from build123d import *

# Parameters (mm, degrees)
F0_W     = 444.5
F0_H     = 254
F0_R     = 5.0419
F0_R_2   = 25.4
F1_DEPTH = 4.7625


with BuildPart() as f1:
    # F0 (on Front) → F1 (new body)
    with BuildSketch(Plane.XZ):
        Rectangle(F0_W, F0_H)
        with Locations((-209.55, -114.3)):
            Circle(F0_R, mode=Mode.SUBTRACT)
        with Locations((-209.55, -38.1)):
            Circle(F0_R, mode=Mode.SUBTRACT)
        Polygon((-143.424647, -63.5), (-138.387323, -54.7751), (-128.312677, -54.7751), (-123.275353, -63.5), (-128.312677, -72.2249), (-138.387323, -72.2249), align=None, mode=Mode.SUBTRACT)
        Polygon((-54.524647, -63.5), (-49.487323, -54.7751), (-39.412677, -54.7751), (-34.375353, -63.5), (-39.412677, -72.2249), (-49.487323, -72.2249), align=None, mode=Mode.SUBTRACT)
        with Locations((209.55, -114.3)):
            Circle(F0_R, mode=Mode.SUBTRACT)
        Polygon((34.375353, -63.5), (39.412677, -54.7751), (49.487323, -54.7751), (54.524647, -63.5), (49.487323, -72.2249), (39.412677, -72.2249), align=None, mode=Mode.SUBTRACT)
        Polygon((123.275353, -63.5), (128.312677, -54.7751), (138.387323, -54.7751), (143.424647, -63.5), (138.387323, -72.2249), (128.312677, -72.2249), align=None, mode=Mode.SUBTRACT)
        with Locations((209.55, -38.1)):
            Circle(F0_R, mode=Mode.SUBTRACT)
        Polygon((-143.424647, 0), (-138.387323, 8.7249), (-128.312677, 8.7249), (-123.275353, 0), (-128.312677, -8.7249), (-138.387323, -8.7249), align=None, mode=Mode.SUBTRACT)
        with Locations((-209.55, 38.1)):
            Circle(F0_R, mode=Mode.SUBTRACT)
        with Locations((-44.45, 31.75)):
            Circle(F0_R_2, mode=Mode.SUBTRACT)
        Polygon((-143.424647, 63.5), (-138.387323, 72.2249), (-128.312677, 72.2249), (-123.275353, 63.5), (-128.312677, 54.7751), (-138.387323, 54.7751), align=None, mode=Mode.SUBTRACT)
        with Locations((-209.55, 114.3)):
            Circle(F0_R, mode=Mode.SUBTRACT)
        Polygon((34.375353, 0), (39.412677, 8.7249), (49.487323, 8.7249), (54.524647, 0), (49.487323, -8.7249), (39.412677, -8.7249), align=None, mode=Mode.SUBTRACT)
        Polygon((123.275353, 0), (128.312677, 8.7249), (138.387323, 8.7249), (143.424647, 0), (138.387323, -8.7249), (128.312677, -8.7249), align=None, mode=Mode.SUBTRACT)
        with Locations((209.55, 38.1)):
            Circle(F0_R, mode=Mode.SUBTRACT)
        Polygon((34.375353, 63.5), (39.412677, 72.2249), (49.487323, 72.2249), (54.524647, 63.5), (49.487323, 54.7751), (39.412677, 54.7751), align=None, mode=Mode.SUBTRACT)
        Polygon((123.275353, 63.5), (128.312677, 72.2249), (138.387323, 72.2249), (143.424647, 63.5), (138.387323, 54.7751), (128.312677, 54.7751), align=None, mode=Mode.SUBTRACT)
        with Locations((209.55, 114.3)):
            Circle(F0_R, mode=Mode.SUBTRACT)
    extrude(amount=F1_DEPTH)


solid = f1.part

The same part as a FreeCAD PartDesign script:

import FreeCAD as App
import Part
import Sketcher

V = App.Vector
Q = App.Units.Quantity


def add_polygon(sketch, points):
    """Adds a closed chain of lines whose ends are joined by coincident constraints."""
    first, n = sketch.GeometryCount, len(points)
    for a, b in zip(points, points[1:] + points[:1]):
        sketch.addGeometry(Part.LineSegment(App.Vector(*a, 0), App.Vector(*b, 0)), False)
    for i in range(n):
        sketch.addConstraint(Sketcher.Constraint("Coincident", first + i, 2, first + (i + 1) % n, 1))

doc = App.newDocument("Part")
body = doc.addObject("PartDesign::Body", "Body")

sketch1 = body.newObject("Sketcher::SketchObject", "Sketch")
sketch1.AttachmentSupport = (doc.getObject("XZ_Plane"), [""])
sketch1.MapMode = "FlatFace"
add_polygon(sketch1, [(-222.25, 127), (-222.25, -127), (222.25, -127), (222.25, 127)])
sketch1.addGeometry(Part.Circle(V(-209.55, -114.3, 0), V(0, 0, 1), 5.0419), False)
add_polygon(sketch1, [(-138.387323, -72.2249), (-143.424647, -63.5), (-138.387323, -54.7751), (-128.312677, -54.7751), (-123.275353, -63.5), (-128.312677, -72.2249)])
add_polygon(sketch1, [(-49.487323, -72.2249), (-54.524647, -63.5), (-49.487323, -54.7751), (-39.412677, -54.7751), (-34.375353, -63.5), (-39.412677, -72.2249)])
sketch1.addGeometry(Part.Circle(V(-209.55, -38.1, 0), V(0, 0, 1), 5.0419), False)
add_polygon(sketch1, [(-138.387323, -8.7249), (-143.424647, 0), (-138.387323, 8.7249), (-128.312677, 8.7249), (-123.275353, 0), (-128.312677, -8.7249)])
add_polygon(sketch1, [(39.412677, -72.2249), (34.375353, -63.5), (39.412677, -54.7751), (49.487323, -54.7751), (54.524647, -63.5), (49.487323, -72.2249)])
sketch1.addGeometry(Part.Circle(V(209.55, -114.3, 0), V(0, 0, 1), 5.0419), False)
add_polygon(sketch1, [(128.312677, -72.2249), (123.275353, -63.5), (128.312677, -54.7751), (138.387323, -54.7751), (143.424647, -63.5), (138.387323, -72.2249)])
add_polygon(sketch1, [(39.412677, -8.7249), (34.375353, 0), (39.412677, 8.7249), (49.487323, 8.7249), (54.524647, 0), (49.487323, -8.7249)])
sketch1.addGeometry(Part.Circle(V(209.55, -38.1, 0), V(0, 0, 1), 5.0419), False)
add_polygon(sketch1, [(128.312677, -8.7249), (123.275353, 0), (128.312677, 8.7249), (138.387323, 8.7249), (143.424647, 0), (138.387323, -8.7249)])
sketch1.addGeometry(Part.Circle(V(-209.55, 38.1, 0), V(0, 0, 1), 5.0419), False)
sketch1.addGeometry(Part.Circle(V(-44.45, 31.75, 0), V(0, 0, 1), 25.4), False)
add_polygon(sketch1, [(-138.387323, 54.7751), (-143.424647, 63.5), (-138.387323, 72.2249), (-128.312677, 72.2249), (-123.275353, 63.5), (-128.312677, 54.7751)])
sketch1.addGeometry(Part.Circle(V(-209.55, 114.3, 0), V(0, 0, 1), 5.0419), False)
sketch1.addGeometry(Part.Circle(V(209.55, 38.1, 0), V(0, 0, 1), 5.0419), False)
add_polygon(sketch1, [(39.412677, 54.7751), (34.375353, 63.5), (39.412677, 72.2249), (49.487323, 72.2249), (54.524647, 63.5), (49.487323, 54.7751)])
add_polygon(sketch1, [(128.312677, 54.7751), (123.275353, 63.5), (128.312677, 72.2249), (138.387323, 72.2249), (143.424647, 63.5), (138.387323, 54.7751)])
sketch1.addGeometry(Part.Circle(V(209.55, 114.3, 0), V(0, 0, 1), 5.0419), False)
sketch1.addConstraint(Sketcher.Constraint("Vertical", 0))
sketch1.addConstraint(Sketcher.Constraint("Horizontal", 1))
sketch1.addConstraint(Sketcher.Constraint("Vertical", 2))
sketch1.addConstraint(Sketcher.Constraint("Horizontal", 3))
sketch1.addConstraint(Sketcher.Constraint("Horizontal", 7))
sketch1.addConstraint(Sketcher.Constraint("Horizontal", 10))
sketch1.addConstraint(Sketcher.Constraint("Horizontal", 13))
sketch1.addConstraint(Sketcher.Constraint("Horizontal", 16))
sketch1.addConstraint(Sketcher.Constraint("Horizontal", 20))
sketch1.addConstraint(Sketcher.Constraint("Horizontal", 23))
sketch1.addConstraint(Sketcher.Constraint("Horizontal", 26))
sketch1.addConstraint(Sketcher.Constraint("Horizontal", 29))
sketch1.addConstraint(Sketcher.Constraint("Horizontal", 33))
sketch1.addConstraint(Sketcher.Constraint("Horizontal", 36))
sketch1.addConstraint(Sketcher.Constraint("Horizontal", 39))
sketch1.addConstraint(Sketcher.Constraint("Horizontal", 42))
sketch1.addConstraint(Sketcher.Constraint("Horizontal", 46))
sketch1.addConstraint(Sketcher.Constraint("Horizontal", 49))
sketch1.addConstraint(Sketcher.Constraint("Horizontal", 54))
sketch1.addConstraint(Sketcher.Constraint("Horizontal", 57))
sketch1.addConstraint(Sketcher.Constraint("Horizontal", 62))
sketch1.addConstraint(Sketcher.Constraint("Horizontal", 65))
sketch1.addConstraint(Sketcher.Constraint("Horizontal", 68))
sketch1.addConstraint(Sketcher.Constraint("Horizontal", 71))
sketch1.addConstraint(Sketcher.Constraint("Equal", 4, 17))
sketch1.addConstraint(Sketcher.Constraint("Equal", 17, 30))
sketch1.addConstraint(Sketcher.Constraint("Equal", 30, 43))
sketch1.addConstraint(Sketcher.Constraint("Equal", 43, 50))
sketch1.addConstraint(Sketcher.Constraint("Equal", 50, 58))
sketch1.addConstraint(Sketcher.Constraint("Equal", 58, 59))
sketch1.addConstraint(Sketcher.Constraint("Equal", 59, 72))
sketch1.addConstraint(Sketcher.Constraint("Symmetric", 43, 3, 50, 3, -1, 1))
sketch1.addConstraint(Sketcher.Constraint("Symmetric", 30, 3, 58, 3, -1, 1))
sketch1.addConstraint(Sketcher.Constraint("Symmetric", 17, 3, 59, 3, -1, 1))
sketch1.addConstraint(Sketcher.Constraint("Symmetric", 4, 3, 72, 3, -1, 1))
sketch1.addConstraint(Sketcher.Constraint("Symmetric", 0, 2, 2, 2, -1, 1))
sketch1.addConstraint(Sketcher.Constraint("Symmetric", 21, 2, 44, 2, -1, 1))
sketch1.addConstraint(Sketcher.Constraint("Symmetric", 22, 2, 45, 2, -1, 1))
sketch1.addConstraint(Sketcher.Constraint("Symmetric", 18, 2, 47, 2, -1, 1))
sketch1.addConstraint(Sketcher.Constraint("Symmetric", 19, 2, 48, 2, -1, 1))
sketch1.addConstraint(Sketcher.Constraint("Symmetric", 34, 2, 52, 2, -1, 1))
sketch1.addConstraint(Sketcher.Constraint("Symmetric", 35, 2, 53, 2, -1, 1))
sketch1.addConstraint(Sketcher.Constraint("Symmetric", 31, 2, 55, 2, -1, 1))
sketch1.addConstraint(Sketcher.Constraint("Symmetric", 32, 2, 56, 2, -1, 1))
sketch1.addConstraint(Sketcher.Constraint("Symmetric", 14, 2, 60, 2, -1, 1))
sketch1.addConstraint(Sketcher.Constraint("Symmetric", 15, 2, 61, 2, -1, 1))
sketch1.addConstraint(Sketcher.Constraint("Symmetric", 11, 2, 63, 2, -1, 1))
sketch1.addConstraint(Sketcher.Constraint("Symmetric", 12, 2, 64, 2, -1, 1))
sketch1.addConstraint(Sketcher.Constraint("Symmetric", 8, 2, 66, 2, -1, 1))
sketch1.addConstraint(Sketcher.Constraint("Symmetric", 9, 2, 67, 2, -1, 1))
sketch1.addConstraint(Sketcher.Constraint("Symmetric", 5, 2, 69, 2, -1, 1))
sketch1.addConstraint(Sketcher.Constraint("Symmetric", 6, 2, 70, 2, -1, 1))
sketch1.addConstraint(Sketcher.Constraint("Symmetric", 4, 3, 30, 3, -2))
sketch1.addConstraint(Sketcher.Constraint("Symmetric", 17, 3, 43, 3, -2))
sketch1.addConstraint(Sketcher.Constraint("Symmetric", 14, 2, 24, 2, -2))
sketch1.addConstraint(Sketcher.Constraint("Symmetric", 13, 2, 25, 2, -2))
sketch1.addConstraint(Sketcher.Constraint("Symmetric", 11, 2, 27, 2, -2))
sketch1.addConstraint(Sketcher.Constraint("Symmetric", 16, 2, 28, 2, -2))
sketch1.addConstraint(Sketcher.Constraint("Symmetric", 8, 2, 31, 2, -2))
sketch1.addConstraint(Sketcher.Constraint("Symmetric", 7, 2, 32, 2, -2))
sketch1.addConstraint(Sketcher.Constraint("Symmetric", 5, 2, 34, 2, -2))
sketch1.addConstraint(Sketcher.Constraint("Symmetric", 10, 2, 35, 2, -2))
sketch1.addConstraint(Sketcher.Constraint("Symmetric", 20, 2, 45, 2, -2))
sketch1.addConstraint(Sketcher.Constraint("Symmetric", 39, 2, 41, 2, -1))
sketch1.addConstraint(Sketcher.Constraint("PointOnObject", 18, 2, -1))
sketch1.addConstraint(Sketcher.Constraint("PointOnObject", 21, 2, -1))
sketch1.addConstraint(Sketcher.Constraint("PointOnObject", 37, 2, -1))
sketch1.addConstraint(Sketcher.Constraint("PointOnObject", 40, 2, -1))
sketch1.addConstraint(Sketcher.Constraint("Parallel", 5, 8))
sketch1.addConstraint(Sketcher.Constraint("Parallel", 6, 9))
sketch1.addConstraint(Sketcher.Constraint("Parallel", 8, 11))
sketch1.addConstraint(Sketcher.Constraint("Parallel", 9, 12))
sketch1.addConstraint(Sketcher.Constraint("Parallel", 11, 14))
sketch1.addConstraint(Sketcher.Constraint("Parallel", 12, 15))
sketch1.addConstraint(Sketcher.Constraint("Parallel", 14, 18))
sketch1.addConstraint(Sketcher.Constraint("Parallel", 15, 19))
sketch1.addConstraint(Sketcher.Constraint("Parallel", 18, 21))
sketch1.addConstraint(Sketcher.Constraint("Parallel", 19, 22))
sketch1.addConstraint(Sketcher.Constraint("Parallel", 21, 24))
sketch1.addConstraint(Sketcher.Constraint("Parallel", 24, 27))
sketch1.addConstraint(Sketcher.Constraint("Parallel", 27, 31))
sketch1.addConstraint(Sketcher.Constraint("Parallel", 31, 34))
sketch1.addConstraint(Sketcher.Constraint("Parallel", 34, 37))
sketch1.addConstraint(Sketcher.Constraint("Parallel", 35, 38))
sketch1.addConstraint(Sketcher.Constraint("Parallel", 37, 40))
sketch1.addConstraint(Sketcher.Constraint("Parallel", 40, 44))
sketch1.addConstraint(Sketcher.Constraint("Parallel", 44, 47))
sketch1.addConstraint(Sketcher.Constraint("Parallel", 47, 52))
sketch1.addConstraint(Sketcher.Constraint("Parallel", 52, 55))
sketch1.addConstraint(Sketcher.Constraint("Parallel", 55, 60))
sketch1.addConstraint(Sketcher.Constraint("Parallel", 60, 63))
sketch1.addConstraint(Sketcher.Constraint("Parallel", 63, 66))
sketch1.addConstraint(Sketcher.Constraint("Parallel", 66, 69))
sketch1.addConstraint(Sketcher.Constraint("Horizontal", 5, 2, 8, 2))
sketch1.addConstraint(Sketcher.Constraint("Horizontal", 8, 2, 11, 2))
sketch1.addConstraint(Sketcher.Constraint("Horizontal", 7, 2, 12, 2))
sketch1.addConstraint(Sketcher.Constraint("Horizontal", 11, 2, 14, 2))
sketch1.addConstraint(Sketcher.Constraint("Horizontal", 10, 2, 15, 2))
sketch1.addConstraint(Sketcher.Constraint("Horizontal", 20, 2, 38, 2))
sketch1.addConstraint(Sketcher.Constraint("Vertical", 4, 3, 17, 3))
sketch1.addConstraint(Sketcher.Constraint("Vertical", 7, 2, 9, 2))
sketch1.addConstraint(Sketcher.Constraint("Vertical", 5, 2, 18, 2))
sketch1.addConstraint(Sketcher.Constraint("Vertical", 10, 2, 19, 2))
sketch1.addConstraint(Sketcher.Constraint("Vertical", 9, 2, 20, 2))
sketch1.addConstraint(Sketcher.Constraint("Vertical", 24, 2, 37, 2))
sketch1.addConstraint(Sketcher.Constraint("Vertical", 28, 2, 39, 2))
sketch1.addConstraint(Sketcher.Constraint("Equal", 10, 13))
sketch1.addConstraint(Sketcher.Constraint("Diameter", 51, Q("2 in")))
sketch1.addConstraint(Sketcher.Constraint("DistanceY", 0, 2, 0, 1, Q("10 in")))
sketch1.addConstraint(Sketcher.Constraint("Diameter", 4, Q("0.397 in")))
sketch1.addConstraint(Sketcher.Constraint("DistanceX", 1, 1, 1, 2, Q("17.5 in")))
sketch1.addConstraint(Sketcher.Constraint("Angle", 5, Q("120.000003 deg")))
sketch1.addConstraint(Sketcher.Constraint("DistanceY", 4, 3, -1, 1, Q("4.5 in")))
sketch1.addConstraint(Sketcher.Constraint("DistanceY", 17, 3, -1, 1, Q("1.5 in")))
sketch1.addConstraint(Sketcher.Constraint("DistanceY", 5, 2, -1, 1, Q("2.5 in")))
sketch1.addConstraint(Sketcher.Constraint("DistanceX", 4, 3, -1, 1, Q("8.25 in")))
sketch1.addConstraint(Sketcher.Constraint("DistanceX", 51, 3, -1, 1, Q("1.75 in")))
sketch1.addConstraint(Sketcher.Constraint("DistanceY", -1, 1, 51, 3, Q("1.25 in")))
sketch1.addConstraint(Sketcher.Constraint("DistanceY", 6, 2, -1, 1, Q("2.1565 in")))
sketch1.addConstraint(Sketcher.Constraint("DistanceX", 7, 1, 7, 2, Q("10.074646 mm")))
sketch1.addConstraint(Sketcher.Constraint("DistanceX", 5, 2, -1, 1, Q("143.424647 mm")))
sketch1.addConstraint(Sketcher.Constraint("DistanceX", 11, 2, -1, 1, Q("54.524647 mm")))
pad1 = body.newObject("PartDesign::Pad", "Pad")
pad1.Profile = sketch1
pad1.Length = Q("0.1875 in")

doc.recompute()
